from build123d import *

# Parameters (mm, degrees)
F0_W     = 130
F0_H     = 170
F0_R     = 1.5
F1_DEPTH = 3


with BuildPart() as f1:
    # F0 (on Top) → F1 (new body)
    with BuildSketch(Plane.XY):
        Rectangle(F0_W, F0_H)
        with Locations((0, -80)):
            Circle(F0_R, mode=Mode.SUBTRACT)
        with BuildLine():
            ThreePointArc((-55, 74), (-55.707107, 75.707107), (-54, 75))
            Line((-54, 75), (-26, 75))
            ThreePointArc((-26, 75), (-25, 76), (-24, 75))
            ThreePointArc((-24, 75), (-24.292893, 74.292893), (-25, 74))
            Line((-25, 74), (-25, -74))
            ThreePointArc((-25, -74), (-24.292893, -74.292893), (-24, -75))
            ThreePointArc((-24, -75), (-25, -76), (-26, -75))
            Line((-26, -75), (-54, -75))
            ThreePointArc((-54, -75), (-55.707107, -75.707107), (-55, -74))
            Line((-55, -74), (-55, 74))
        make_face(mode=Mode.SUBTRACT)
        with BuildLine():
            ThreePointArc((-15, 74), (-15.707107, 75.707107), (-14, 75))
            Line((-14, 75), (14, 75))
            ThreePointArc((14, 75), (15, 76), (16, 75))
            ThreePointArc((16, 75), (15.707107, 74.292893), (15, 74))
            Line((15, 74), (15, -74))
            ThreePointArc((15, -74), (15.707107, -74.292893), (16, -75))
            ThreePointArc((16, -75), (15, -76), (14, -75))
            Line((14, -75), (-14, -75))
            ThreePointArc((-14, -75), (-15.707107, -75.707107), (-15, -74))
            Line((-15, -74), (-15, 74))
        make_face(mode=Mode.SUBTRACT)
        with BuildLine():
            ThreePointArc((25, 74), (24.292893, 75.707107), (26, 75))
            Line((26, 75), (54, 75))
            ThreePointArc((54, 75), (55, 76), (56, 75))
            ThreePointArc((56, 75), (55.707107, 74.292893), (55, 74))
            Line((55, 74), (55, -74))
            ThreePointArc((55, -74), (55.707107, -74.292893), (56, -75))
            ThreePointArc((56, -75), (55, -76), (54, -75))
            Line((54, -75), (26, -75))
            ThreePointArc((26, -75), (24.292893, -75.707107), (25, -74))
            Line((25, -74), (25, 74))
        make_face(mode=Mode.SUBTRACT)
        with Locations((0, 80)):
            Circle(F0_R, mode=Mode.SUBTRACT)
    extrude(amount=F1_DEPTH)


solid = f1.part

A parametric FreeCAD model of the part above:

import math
import FreeCAD as App
import Part
import Sketcher

doc = App.newDocument("Part")
body = doc.addObject("PartDesign::Body", "Body")

# Sketch on XY plane
sketch1 = body.newObject("Sketcher::SketchObject", "Sketch")
sketch1.AttachmentSupport = (doc.getObject("XY_Plane"), [""])
sketch1.MapMode = "FlatFace"
sketch1.addGeometry(Part.LineSegment(App.Vector(-65, 85, 0), App.Vector(-65, -85, 0)), False)
sketch1.addGeometry(Part.LineSegment(App.Vector(-65, -85, 0), App.Vector(65, -85, 0)), False)
sketch1.addGeometry(Part.LineSegment(App.Vector(65, -85, 0), App.Vector(65, 85, 0)), False)
sketch1.addGeometry(Part.LineSegment(App.Vector(65, 85, 0), App.Vector(-65, 85, 0)), False)
sketch1.addGeometry(Part.Circle(App.Vector(0, -80, 0), App.Vector(0, 0, 1), 1.5), False)
sketch1.addGeometry(Part.LineSegment(App.Vector(-55, -74, 0), App.Vector(-55, 74, 0)), False)
sketch1.addGeometry(Part.ArcOfCircle(Part.Circle(App.Vector(-55, 75, 0), App.Vector(0, 0, 1), 1), math.radians(0), math.radians(270)), False)
sketch1.addGeometry(Part.LineSegment(App.Vector(-54, 75, 0), App.Vector(-26, 75, 0)), False)
sketch1.addGeometry(Part.ArcOfCircle(Part.Circle(App.Vector(-25, 75, 0), App.Vector(0, 0, 1), 1), math.radians(0), math.radians(180)), False)
sketch1.addGeometry(Part.ArcOfCircle(Part.Circle(App.Vector(-25, 75, 0), App.Vector(0, 0, 1), 1), math.radians(-90), math.radians(0)), False)
sketch1.addGeometry(Part.LineSegment(App.Vector(-25, 74, 0), App.Vector(-25, -74, 0)), False)
sketch1.addGeometry(Part.ArcOfCircle(Part.Circle(App.Vector(-25, -75, 0), App.Vector(0, 0, 1), 1), math.radians(0), math.radians(90)), False)
sketch1.addGeometry(Part.ArcOfCircle(Part.Circle(App.Vector(-25, -75, 0), App.Vector(0, 0, 1), 1), math.radians(180), math.radians(360)), False)
sketch1.addGeometry(Part.LineSegment(App.Vector(-26, -75, 0), App.Vector(-54, -75, 0)), False)
sketch1.addGeometry(Part.ArcOfCircle(Part.Circle(App.Vector(-55, -75, 0), App.Vector(0, 0, 1), 1), math.radians(90), math.radians(360)), False)
sketch1.addGeometry(Part.LineSegment(App.Vector(-15, -74, 0), App.Vector(-15, 74, 0)), False)
sketch1.addGeometry(Part.ArcOfCircle(Part.Circle(App.Vector(-15, 75, 0), App.Vector(0, 0, 1), 1), math.radians(0), math.radians(270)), False)
sketch1.addGeometry(Part.LineSegment(App.Vector(-14, 75, 0), App.Vector(14, 75, 0)), False)
sketch1.addGeometry(Part.ArcOfCircle(Part.Circle(App.Vector(15, 75, 0), App.Vector(0, 0, 1), 1), math.radians(0), math.radians(180)), False)
sketch1.addGeometry(Part.ArcOfCircle(Part.Circle(App.Vector(15, 75, 0), App.Vector(0, 0, 1), 1), math.radians(-90), math.radians(0)), False)
sketch1.addGeometry(Part.LineSegment(App.Vector(15, 74, 0), App.Vector(15, -74, 0)), False)
sketch1.addGeometry(Part.ArcOfCircle(Part.Circle(App.Vector(15, -75, 0), App.Vector(0, 0, 1), 1), math.radians(0), math.radians(90)), False)
sketch1.addGeometry(Part.ArcOfCircle(Part.Circle(App.Vector(15, -75, 0), App.Vector(0, 0, 1), 1), math.radians(180), math.radians(360)), False)
sketch1.addGeometry(Part.LineSegment(App.Vector(14, -75, 0), App.Vector(-14, -75, 0)), False)
sketch1.addGeometry(Part.ArcOfCircle(Part.Circle(App.Vector(-15, -75, 0), App.Vector(0, 0, 1), 1), math.radians(90), math.radians(360)), False)
sketch1.addGeometry(Part.LineSegment(App.Vector(25, -74, 0), App.Vector(25, 74, 0)), False)
sketch1.addGeometry(Part.ArcOfCircle(Part.Circle(App.Vector(25, 75, 0), App.Vector(0, 0, 1), 1), math.radians(0), math.radians(270)), False)
sketch1.addGeometry(Part.LineSegment(App.Vector(26, 75, 0), App.Vector(54, 75, 0)), False)
sketch1.addGeometry(Part.ArcOfCircle(Part.Circle(App.Vector(55, 75, 0), App.Vector(0, 0, 1), 1), math.radians(0), math.radians(180)), False)
sketch1.addGeometry(Part.ArcOfCircle(Part.Circle(App.Vector(55, 75, 0), App.Vector(0, 0, 1), 1), math.radians(-90), math.radians(0)), False)
sketch1.addGeometry(Part.LineSegment(App.Vector(55, 74, 0), App.Vector(55, -74, 0)), False)
sketch1.addGeometry(Part.ArcOfCircle(Part.Circle(App.Vector(55, -75, 0), App.Vector(0, 0, 1), 1), math.radians(0), math.radians(90)), False)
sketch1.addGeometry(Part.ArcOfCircle(Part.Circle(App.Vector(55, -75, 0), App.Vector(0, 0, 1), 1), math.radians(180), math.radians(360)), False)
sketch1.addGeometry(Part.LineSegment(App.Vector(54, -75, 0), App.Vector(26, -75, 0)), False)
sketch1.addGeometry(Part.ArcOfCircle(Part.Circle(App.Vector(25, -75, 0), App.Vector(0, 0, 1), 1), math.radians(90), math.radians(360)), False)
sketch1.addGeometry(Part.Circle(App.Vector(0, 80, 0), App.Vector(0, 0, 1), 1.5), False)
sketch1.addConstraint(Sketcher.Constraint("Coincident", 0, 2, 1, 1))
sketch1.addConstraint(Sketcher.Constraint("Coincident", 1, 2, 2, 1))
sketch1.addConstraint(Sketcher.Constraint("Coincident", 2, 2, 3, 1))
sketch1.addConstraint(Sketcher.Constraint("Coincident", 3, 2, 0, 1))
sketch1.addConstraint(Sketcher.Constraint("Coincident", 5, 2, 6, 2))
sketch1.addConstraint(Sketcher.Constraint("Coincident", 6, 1, 7, 1))
sketch1.addConstraint(Sketcher.Constraint("Coincident", 7, 2, 8, 2))
sketch1.addConstraint(Sketcher.Constraint("Tangent", 8, 1, 9, 2))
sketch1.addConstraint(Sketcher.Constraint("Coincident", 9, 1, 10, 1))
sketch1.addConstraint(Sketcher.Constraint("Coincident", 10, 2, 11, 2))
sketch1.addConstraint(Sketcher.Constraint("Tangent", 11, 1, 12, 2))
sketch1.addConstraint(Sketcher.Constraint("Coincident", 12, 1, 13, 1))
sketch1.addConstraint(Sketcher.Constraint("Coincident", 13, 2, 14, 2))
sketch1.addConstraint(Sketcher.Constraint("Coincident", 14, 1, 5, 1))
sketch1.addConstraint(Sketcher.Constraint("Coincident", 15, 2, 16, 2))
sketch1.addConstraint(Sketcher.Constraint("Coincident", 16, 1, 17, 1))
sketch1.addConstraint(Sketcher.Constraint("Coincident", 17, 2, 18, 2))
sketch1.addConstraint(Sketcher.Constraint("Tangent", 18, 1, 19, 2))
sketch1.addConstraint(Sketcher.Constraint("Coincident", 19, 1, 20, 1))
sketch1.addConstraint(Sketcher.Constraint("Coincident", 20, 2, 21, 2))
sketch1.addConstraint(Sketcher.Constraint("Tangent", 21, 1, 22, 2))
sketch1.addConstraint(Sketcher.Constraint("Coincident", 22, 1, 23, 1))
sketch1.addConstraint(Sketcher.Constraint("Coincident", 23, 2, 24, 2))
sketch1.addConstraint(Sketcher.Constraint("Coincident", 24, 1, 15, 1))
sketch1.addConstraint(Sketcher.Constraint("Coincident", 25, 2, 26, 2))
sketch1.addConstraint(Sketcher.Constraint("Coincident", 26, 1, 27, 1))
sketch1.addConstraint(Sketcher.Constraint("Coincident", 27, 2, 28, 2))
sketch1.addConstraint(Sketcher.Constraint("Tangent", 28, 1, 29, 2))
sketch1.addConstraint(Sketcher.Constraint("Coincident", 29, 1, 30, 1))
sketch1.addConstraint(Sketcher.Constraint("Coincident", 30, 2, 31, 2))
sketch1.addConstraint(Sketcher.Constraint("Tangent", 31, 1, 32, 2))
sketch1.addConstraint(Sketcher.Constraint("Coincident", 32, 1, 33, 1))
sketch1.addConstraint(Sketcher.Constraint("Coincident", 33, 2, 34, 2))
sketch1.addConstraint(Sketcher.Constraint("Coincident", 34, 1, 25, 1))
sketch1.addConstraint(Sketcher.Constraint("Vertical", 0))
sketch1.addConstraint(Sketcher.Constraint("Horizontal", 1))
sketch1.addConstraint(Sketcher.Constraint("Vertical", 2))
sketch1.addConstraint(Sketcher.Constraint("Horizontal", 3))
sketch1.addConstraint(Sketcher.Constraint("Vertical", 5))
sketch1.addConstraint(Sketcher.Constraint("Horizontal", 7))
sketch1.addConstraint(Sketcher.Constraint("Vertical", 10))
sketch1.addConstraint(Sketcher.Constraint("Horizontal", 13))
sketch1.addConstraint(Sketcher.Constraint("Vertical", 15))
sketch1.addConstraint(Sketcher.Constraint("Horizontal", 17))
sketch1.addConstraint(Sketcher.Constraint("Vertical", 20))
sketch1.addConstraint(Sketcher.Constraint("Horizontal", 23))
sketch1.addConstraint(Sketcher.Constraint("Vertical", 25))
sketch1.addConstraint(Sketcher.Constraint("Horizontal", 27))
sketch1.addConstraint(Sketcher.Constraint("Vertical", 30))
sketch1.addConstraint(Sketcher.Constraint("Horizontal", 33))
sketch1.addConstraint(Sketcher.Constraint("Equal", 6, 8))
sketch1.addConstraint(Sketcher.Constraint("Equal", 8, 9))
sketch1.addConstraint(Sketcher.Constraint("Equal", 9, 11))
sketch1.addConstraint(Sketcher.Constraint("Equal", 11, 12))
sketch1.addConstraint(Sketcher.Constraint("Equal", 12, 14))
sketch1.addConstraint(Sketcher.Constraint("Equal", 14, 16))
sketch1.addConstraint(Sketcher.Constraint("Equal", 16, 18))
sketch1.addConstraint(Sketcher.Constraint("Equal", 18, 19))
sketch1.addConstraint(Sketcher.Constraint("Equal", 19, 21))
sketch1.addConstraint(Sketcher.Constraint("Equal", 21, 22))
sketch1.addConstraint(Sketcher.Constraint("Equal", 22, 24))
sketch1.addConstraint(Sketcher.Constraint("Equal", 24, 26))
sketch1.addConstraint(Sketcher.Constraint("Equal", 26, 28))
sketch1.addConstraint(Sketcher.Constraint("Equal", 28, 29))
sketch1.addConstraint(Sketcher.Constraint("Equal", 29, 31))
sketch1.addConstraint(Sketcher.Constraint("Equal", 31, 32))
sketch1.addConstraint(Sketcher.Constraint("Equal", 32, 34))
sketch1.addConstraint(Sketcher.Constraint("Equal", 4, 35))
sketch1.addConstraint(Sketcher.Constraint("Symmetric", 16, 3, 21, 3, -1, 1))
sketch1.addConstraint(Sketcher.Constraint("Symmetric", 18, 3, 24, 3, -1, 1))
sketch1.addConstraint(Sketcher.Constraint("Symmetric", 11, 3, 26, 3, -1, 1))
sketch1.addConstraint(Sketcher.Constraint("Symmetric", 14, 3, 28, 3, -1, 1))
sketch1.addConstraint(Sketcher.Constraint("Symmetric", 6, 3, 31, 3, -1, 1))
sketch1.addConstraint(Sketcher.Constraint("Symmetric", 8, 3, 34, 3, -1, 1))
sketch1.addConstraint(Sketcher.Constraint("Symmetric", 4, 3, 35, 3, -1, 1))
sketch1.addConstraint(Sketcher.Constraint("Symmetric", 0, 2, 2, 2, -1, 1))
sketch1.addConstraint(Sketcher.Constraint("Symmetric", 16, 3, 18, 3, -2))
sketch1.addConstraint(Sketcher.Constraint("Symmetric", 8, 3, 26, 3, -2))
sketch1.addConstraint(Sketcher.Constraint("Symmetric", 6, 3, 28, 3, -2))
sketch1.addConstraint(Sketcher.Constraint("PointOnObject", 4, 3, -2))
sketch1.addConstraint(Sketcher.Constraint("Horizontal", 6, 3, 8, 3))
sketch1.addConstraint(Sketcher.Constraint("Horizontal", 9, 3, 16, 3))
sketch1.addConstraint(Sketcher.Constraint("Horizontal", 29, 3, 6, 1))
sketch1.addConstraint(Sketcher.Constraint("Horizontal", 7, 2, 8, 1))
sketch1.addConstraint(Sketcher.Constraint("Horizontal", 34, 3, 11, 1))
sketch1.addConstraint(Sketcher.Constraint("Horizontal", 11, 1, 12, 1))
sketch1.addConstraint(Sketcher.Constraint("Horizontal", 8, 1, 16, 1))
sketch1.addConstraint(Sketcher.Constraint("Horizontal", 17, 2, 18, 1))
sketch1.addConstraint(Sketcher.Constraint("Horizontal", 13, 2, 21, 1))
sketch1.addConstraint(Sketcher.Constraint("Horizontal", 21, 1, 22, 1))
sketch1.addConstraint(Sketcher.Constraint("Horizontal", 18, 1, 26, 1))
sketch1.addConstraint(Sketcher.Constraint("Horizontal", 27, 2, 28, 1))
sketch1.addConstraint(Sketcher.Constraint("Horizontal", 23, 2, 31, 1))
sketch1.addConstraint(Sketcher.Constraint("Horizontal", 31, 1, 32, 1))
sketch1.addConstraint(Sketcher.Constraint("Vertical", 14, 3, 5, 2))
sketch1.addConstraint(Sketcher.Constraint("Vertical", 12, 3, 9, 1))
sketch1.addConstraint(Sketcher.Constraint("Vertical", 24, 3, 15, 2))
sketch1.addConstraint(Sketcher.Constraint("Vertical", 22, 3, 19, 1))
sketch1.addConstraint(Sketcher.Constraint("Vertical", 34, 3, 25, 2))
sketch1.addConstraint(Sketcher.Constraint("Vertical", 32, 3, 29, 1))
sketch1.addConstraint(Sketcher.Constraint("Equal", 13, 17))
sketch1.addConstraint(Sketcher.Constraint("Diameter", 4, 3.0))
sketch1.addConstraint(Sketcher.Constraint("Radius", 6, 1.0))
sketch1.addConstraint(Sketcher.Constraint("DistanceX", 1, 1, 1, 2, 130.0))
sketch1.addConstraint(Sketcher.Constraint("DistanceX", 7, 1, 7, 2, 28.0))
sketch1.addConstraint(Sketcher.Constraint("DistanceY", 0, 2, 0, 1, 170.0))
sketch1.addConstraint(Sketcher.Constraint("DistanceY", 5, 1, 5, 2, 148.0))
sketch1.addConstraint(Sketcher.Constraint("DistanceY", 4, 3, -1, 1, 80.0))
sketch1.addConstraint(Sketcher.Constraint("DistanceX", 6, 3, -1, 1, 55.0))
pad1 = body.newObject("PartDesign::Pad", "Pad")
pad1.Profile = sketch1
pad1.Length = 3

doc.recompute()
